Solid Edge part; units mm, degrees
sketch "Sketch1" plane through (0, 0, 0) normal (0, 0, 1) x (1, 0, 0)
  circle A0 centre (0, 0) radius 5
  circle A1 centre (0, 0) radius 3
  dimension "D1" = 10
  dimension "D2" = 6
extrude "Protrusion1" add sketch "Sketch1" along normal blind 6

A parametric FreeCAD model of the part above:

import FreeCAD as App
import Part
import Sketcher
from FreeCAD import Vector
Q = App.Units.Quantity

doc = App.newDocument("Part")
body = doc.addObject("PartDesign::Body", "Body")

# Sketch on XY plane
sketch1 = body.newObject("Sketcher::SketchObject", "Sketch")
sketch1.AttachmentSupport = (doc.getObject("XY_Plane"), [""])
sketch1.MapMode = "FlatFace"
sketch1.addGeometry([
    Part.Circle(Vector(0, 0, 0), Vector(0, 0, 1), 5),
    Part.Circle(Vector(0, 0, 0), Vector(0, 0, 1), 3),
], False)
sketch1.addConstraint([
    Sketcher.Constraint("Coincident", 0, 3, -1, 1),
    Sketcher.Constraint("Coincident", 1, 3, -1, 1),
    Sketcher.Constraint("Diameter", 0, Q("10 mm")),
    Sketcher.Constraint("Diameter", 1, Q("6 mm")),
])
pad1 = body.newObject("PartDesign::Pad", "Pad")
pad1.Profile = sketch1
pad1.Length = 6

doc.recompute()
